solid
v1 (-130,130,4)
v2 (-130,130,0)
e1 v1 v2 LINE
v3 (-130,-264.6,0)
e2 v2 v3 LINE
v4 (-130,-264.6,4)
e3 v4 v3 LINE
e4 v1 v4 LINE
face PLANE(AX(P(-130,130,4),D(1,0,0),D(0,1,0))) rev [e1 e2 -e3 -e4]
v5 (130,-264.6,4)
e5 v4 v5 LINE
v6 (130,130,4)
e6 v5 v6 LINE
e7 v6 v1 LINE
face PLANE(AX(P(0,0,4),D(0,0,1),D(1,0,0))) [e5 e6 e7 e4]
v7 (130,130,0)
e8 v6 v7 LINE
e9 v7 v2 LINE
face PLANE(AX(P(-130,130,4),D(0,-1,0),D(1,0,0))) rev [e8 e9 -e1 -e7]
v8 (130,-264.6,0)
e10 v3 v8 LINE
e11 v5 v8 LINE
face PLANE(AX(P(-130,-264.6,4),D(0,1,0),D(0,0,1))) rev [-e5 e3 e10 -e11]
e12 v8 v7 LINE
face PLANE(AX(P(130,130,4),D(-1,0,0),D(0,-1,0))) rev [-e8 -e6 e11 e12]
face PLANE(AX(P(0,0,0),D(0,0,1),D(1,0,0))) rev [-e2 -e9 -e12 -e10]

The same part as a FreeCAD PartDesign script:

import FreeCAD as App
import Part
import Sketcher

doc = App.newDocument("Part")
params = doc.addObject("Spreadsheet::Sheet", "Params")
for row, (alias, value) in enumerate([
    ("sketch1_width", "260 mm"),
    ("sketch1_height", "394.6 mm"),
    ("pad1_length", "4 mm"),
], start=1):
    params.set(f"A{row}", alias)
    params.set(f"B{row}", "=" + value)
    params.setAlias(f"B{row}", alias)

body = doc.addObject("PartDesign::Body", "Body")

# Sketch on XY plane
sketch1 = body.newObject("Sketcher::SketchObject", "Sketch")
sketch1.AttachmentSupport = (doc.getObject("XY_Plane"), [""])
sketch1.MapMode = "FlatFace"
sketch1.addGeometry([
    Part.LineSegment(App.Vector(-130, 130, 0), App.Vector(-130, -264.6, 0)),
    Part.LineSegment(App.Vector(-130, -264.6, 0), App.Vector(130, -264.6, 0)),
    Part.LineSegment(App.Vector(130, -264.6, 0), App.Vector(130, 130, 0)),
    Part.LineSegment(App.Vector(130, 130, 0), App.Vector(-130, 130, 0)),
], False)
sketch1.addConstraint([
    Sketcher.Constraint("Coincident", 0, 2, 1, 1),
    Sketcher.Constraint("Coincident", 1, 2, 2, 1),
    Sketcher.Constraint("Coincident", 2, 2, 3, 1),
    Sketcher.Constraint("Coincident", 3, 2, 0, 1),
    Sketcher.Constraint("Vertical", 0),
    Sketcher.Constraint("Horizontal", 1),
    Sketcher.Constraint("Vertical", 2),
    Sketcher.Constraint("Horizontal", 3),
    Sketcher.Constraint("DistanceX", 1, 1, 1, 2, 260.0),
    Sketcher.Constraint("DistanceY", 0, 2, 0, 1, 394.6),
    Sketcher.Constraint("DistanceX", 0, 2, -1, 1, 130.0),
    Sketcher.Constraint("DistanceY", -1, 1, 2, 2, 130.0),
])
sketch1.setExpression("Constraints[8]", "Params.sketch1_width")
sketch1.setExpression("Constraints[9]", "Params.sketch1_height")
pad1 = body.newObject("PartDesign::Pad", "Pad")
pad1.Profile = sketch1
pad1.setExpression("Length", "Params.pad1_length")

doc.recompute()
